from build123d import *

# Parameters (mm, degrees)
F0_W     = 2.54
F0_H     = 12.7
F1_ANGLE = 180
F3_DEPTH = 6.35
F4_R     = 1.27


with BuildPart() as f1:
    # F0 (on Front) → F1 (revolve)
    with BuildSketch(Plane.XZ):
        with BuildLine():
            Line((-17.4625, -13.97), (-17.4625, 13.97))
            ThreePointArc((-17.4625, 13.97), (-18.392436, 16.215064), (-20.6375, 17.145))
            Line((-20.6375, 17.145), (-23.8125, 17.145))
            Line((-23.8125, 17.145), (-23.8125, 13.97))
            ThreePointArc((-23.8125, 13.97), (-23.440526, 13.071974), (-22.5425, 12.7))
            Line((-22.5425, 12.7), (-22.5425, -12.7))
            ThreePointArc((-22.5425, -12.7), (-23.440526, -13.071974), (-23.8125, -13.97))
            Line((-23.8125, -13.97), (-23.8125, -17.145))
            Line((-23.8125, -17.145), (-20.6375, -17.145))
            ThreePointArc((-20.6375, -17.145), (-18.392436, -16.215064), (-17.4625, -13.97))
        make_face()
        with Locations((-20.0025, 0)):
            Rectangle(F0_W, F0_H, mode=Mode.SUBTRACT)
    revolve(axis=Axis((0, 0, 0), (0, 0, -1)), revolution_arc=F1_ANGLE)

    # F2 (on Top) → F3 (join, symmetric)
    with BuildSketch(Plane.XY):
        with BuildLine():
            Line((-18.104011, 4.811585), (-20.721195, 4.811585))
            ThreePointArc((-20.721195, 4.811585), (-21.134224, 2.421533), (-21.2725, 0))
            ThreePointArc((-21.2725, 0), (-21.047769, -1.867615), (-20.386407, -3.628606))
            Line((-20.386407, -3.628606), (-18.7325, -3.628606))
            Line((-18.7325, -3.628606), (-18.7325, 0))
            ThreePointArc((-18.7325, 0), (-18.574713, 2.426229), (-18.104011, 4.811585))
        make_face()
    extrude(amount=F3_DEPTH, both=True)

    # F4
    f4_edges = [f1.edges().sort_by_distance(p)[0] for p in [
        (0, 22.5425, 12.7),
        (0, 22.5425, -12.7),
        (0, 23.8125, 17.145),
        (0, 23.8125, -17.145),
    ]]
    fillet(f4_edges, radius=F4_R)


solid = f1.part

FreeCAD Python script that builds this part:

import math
import FreeCAD as App
import Part
import Sketcher
Q = App.Units.Quantity


def edges_at(feature, points):
    """Names of the edges that pass closest to the given points."""
    edges = feature.Shape.Edges
    near = lambda p: min(range(len(edges)), key=lambda i: edges[i].distToShape(Part.Vertex(*p))[0])
    return sorted({f"Edge{near(p) + 1}" for p in points})


def add_polygon(sketch, points):
    """Adds a closed chain of lines whose ends are joined by coincident constraints."""
    first, n = sketch.GeometryCount, len(points)
    for a, b in zip(points, points[1:] + points[:1]):
        sketch.addGeometry(Part.LineSegment(App.Vector(*a, 0), App.Vector(*b, 0)), False)
    for i in range(n):
        sketch.addConstraint(Sketcher.Constraint("Coincident", first + i, 2, first + (i + 1) % n, 1))

doc = App.newDocument("Part")
body = doc.addObject("PartDesign::Body", "Body")

# Sketch on XZ plane
sketch1 = body.newObject("Sketcher::SketchObject", "Sketch")
sketch1.AttachmentSupport = (doc.getObject("XZ_Plane"), [""])
sketch1.MapMode = "FlatFace"
sketch1.addGeometry(Part.LineSegment(App.Vector(-17.5, -14, 0), App.Vector(-17.5, 14, 0)), False)  # 0
sketch1.addGeometry(Part.ArcOfCircle(Part.Circle(App.Vector(-20.6, 14, 0), App.Vector(0, 0, 1), 3.2), math.radians(0), math.radians(90)), False)  # 1
sketch1.addGeometry(Part.LineSegment(App.Vector(-20.6, 17.1, 0), App.Vector(-23.8, 17.1, 0)), False)  # 2
sketch1.addGeometry(Part.LineSegment(App.Vector(-23.8, 17.1, 0), App.Vector(-23.8, 14, 0)), False)  # 3
sketch1.addGeometry(Part.ArcOfCircle(Part.Circle(App.Vector(-22.5, 14, 0), App.Vector(0, 0, 1), 1.3), math.radians(180), math.radians(270)), False)  # 4
sketch1.addGeometry(Part.LineSegment(App.Vector(-22.5, 12.7, 0), App.Vector(-22.5, -12.7, 0)), False)  # 5
sketch1.addGeometry(Part.ArcOfCircle(Part.Circle(App.Vector(-22.5, -14, 0), App.Vector(0, 0, 1), 1.3), math.radians(90), math.radians(180)), False)  # 6
sketch1.addGeometry(Part.LineSegment(App.Vector(-23.8, -14, 0), App.Vector(-23.8, -17.1, 0)), False)  # 7
sketch1.addGeometry(Part.LineSegment(App.Vector(-23.8, -17.1, 0), App.Vector(-20.6, -17.1, 0)), False)  # 8
sketch1.addGeometry(Part.ArcOfCircle(Part.Circle(App.Vector(-20.6, -14, 0), App.Vector(0, 0, 1), 3.2), math.radians(-90), math.radians(0)), False)  # 9
add_polygon(sketch1, [(-18.7, -6.3), (-21.3, -6.3), (-21.3, 6.3), (-18.7, 6.3)])  # lines 10-13
sketch1.addConstraint(Sketcher.Constraint("Tangent", 0, 2, 1, 1))
sketch1.addConstraint(Sketcher.Constraint("Tangent", 1, 2, 2, 1))
sketch1.addConstraint(Sketcher.Constraint("Coincident", 2, 2, 3, 1))
sketch1.addConstraint(Sketcher.Constraint("Tangent", 3, 2, 4, 1))
sketch1.addConstraint(Sketcher.Constraint("Coincident", 4, 2, 5, 1))
sketch1.addConstraint(Sketcher.Constraint("Coincident", 5, 2, 6, 1))
sketch1.addConstraint(Sketcher.Constraint("Tangent", 6, 2, 7, 1))
sketch1.addConstraint(Sketcher.Constraint("Coincident", 7, 2, 8, 1))
sketch1.addConstraint(Sketcher.Constraint("Tangent", 8, 2, 9, 1))
sketch1.addConstraint(Sketcher.Constraint("Tangent", 9, 2, 0, 1))
sketch1.addConstraint(Sketcher.Constraint("Vertical", 0))
sketch1.addConstraint(Sketcher.Constraint("Horizontal", 2))
sketch1.addConstraint(Sketcher.Constraint("Vertical", 3))
sketch1.addConstraint(Sketcher.Constraint("Vertical", 5))
sketch1.addConstraint(Sketcher.Constraint("Vertical", 7))
sketch1.addConstraint(Sketcher.Constraint("Horizontal", 8))
sketch1.addConstraint(Sketcher.Constraint("Horizontal", 10))
sketch1.addConstraint(Sketcher.Constraint("Vertical", 11))
sketch1.addConstraint(Sketcher.Constraint("Horizontal", 12))
sketch1.addConstraint(Sketcher.Constraint("Vertical", 13))
sketch1.addConstraint(Sketcher.Constraint("Equal", 4, 6))
sketch1.addConstraint(Sketcher.Constraint("Equal", 1, 9))
sketch1.addConstraint(Sketcher.Constraint("Symmetric", 4, 3, 6, 3, -1))
sketch1.addConstraint(Sketcher.Constraint("Horizontal", 1, 3, 4, 3))
sketch1.addConstraint(Sketcher.Constraint("Horizontal", 6, 3, 9, 3))
sketch1.addConstraint(Sketcher.Constraint("Vertical", 6, 3, 4, 2))
sketch1.addConstraint(Sketcher.Constraint("Equal", 8, 3))
sketch1.addConstraint(Sketcher.Constraint("DistanceY", 5, 2, 5, 1, Q("1 in")))
sketch1.addConstraint(Sketcher.Constraint("Radius", 4, Q("0.0499999 in")))
sketch1.addConstraint(Sketcher.Constraint("DistanceX", 10, 2, 10, 1, Q("0.1 in")))
sketch1.addConstraint(Sketcher.Constraint("DistanceY", 11, 1, 11, 2, Q("0.5 in")))
sketch1.addConstraint(Sketcher.Constraint("Radius", 1, Q("0.125 in")))
sketch1.addConstraint(Sketcher.Constraint("DistanceY", 9, 3, 10, 2, Q("0.3 in")))
sketch1.addConstraint(Sketcher.Constraint("DistanceX", 6, 2, 10, 2, Q("0.1 in")))
sketch1.addConstraint(Sketcher.Constraint("DistanceX", 1, 3, -1, 1, Q("0.8125 in")))
revolution = body.newObject("PartDesign::Revolution", "Revolution")
revolution.Profile = sketch1
revolution.ReferenceAxis = (sketch1, ["V_Axis"])
revolution.Angle = 180
revolution.Reversed = True

# Sketch on XY plane
sketch2 = body.newObject("Sketcher::SketchObject", "Sketch001")
sketch2.AttachmentSupport = (doc.getObject("XY_Plane"), [""])
sketch2.MapMode = "FlatFace"
sketch2.addGeometry(Part.LineSegment(App.Vector(-18.1, 4.8, 0), App.Vector(-20.7, 4.8, 0)), False)
sketch2.addGeometry(Part.ArcOfCircle(Part.Circle(App.Vector(0, 0, 0), App.Vector(0, 0, 1), 21.3), math.radians(166.93), math.radians(180)), False)
sketch2.addGeometry(Part.ArcOfCircle(Part.Circle(App.Vector(-13.4, 0, 0), App.Vector(0, 0, 1), 7.9), math.radians(-180), math.radians(-153)), False)
sketch2.addGeometry(Part.LineSegment(App.Vector(-20.4, -3.6, 0), App.Vector(-18.7, -3.6, 0)), False)
sketch2.addGeometry(Part.LineSegment(App.Vector(-18.7, -3.6, 0), App.Vector(-18.7, 0, 0)), False)
sketch2.addGeometry(Part.ArcOfCircle(Part.Circle(App.Vector(0, 0, 0), App.Vector(0, 0, 1), 18.7), math.radians(165.12), math.radians(180)), False)
sketch2.addConstraint(Sketcher.Constraint("Coincident", 0, 2, 1, 1))
sketch2.addConstraint(Sketcher.Constraint("Tangent", 1, 2, 2, 1))
sketch2.addConstraint(Sketcher.Constraint("Coincident", 2, 2, 3, 1))
sketch2.addConstraint(Sketcher.Constraint("Coincident", 3, 2, 4, 1))
sketch2.addConstraint(Sketcher.Constraint("Tangent", 4, 2, 5, 2))
sketch2.addConstraint(Sketcher.Constraint("Coincident", 5, 1, 0, 1))
sketch2.addConstraint(Sketcher.Constraint("Horizontal", 0))
sketch2.addConstraint(Sketcher.Constraint("Horizontal", 3))
sketch2.addConstraint(Sketcher.Constraint("Vertical", 4))
sketch2.addConstraint(Sketcher.Constraint("PointOnObject", 2, 3, -1))
sketch2.addConstraint(Sketcher.Constraint("PointOnObject", 1, 2, -1))
sketch2.addConstraint(Sketcher.Constraint("PointOnObject", 4, 2, -1))
sketch2.addConstraint(Sketcher.Constraint("DistanceX", 1, 2, 3, 2, Q("0.1 in")))
sketch2.addConstraint(Sketcher.Constraint("DistanceX", 1, 2, -1, 1, Q("0.8375 in")))
sketch2.addConstraint(Sketcher.Constraint("Radius", 1, 21.272566))
sketch2.addConstraint(Sketcher.Constraint("Radius", 2, 7.872737))
sketch2.addConstraint(Sketcher.Constraint("Radius", 5, 18.732532))
sketch2.addConstraint(Sketcher.Constraint("DistanceY", 2, 2, 1, 3, 3.6286))
sketch2.addConstraint(Sketcher.Constraint("DistanceX", 0, 2, 0, 1, 2.617184))
pad1 = body.newObject("PartDesign::Pad", "Pad")
pad1.Profile = sketch2
pad1.Length = Q("0.5 in")
pad1.Midplane = True
doc.recompute()

fillet = body.newObject("PartDesign::Fillet", "Fillet")
fillet.Base = (pad1, edges_at(pad1, [
    (0, 22.543, 12.7),
    (0, 22.543, -12.7),
    (0, 23.812, 17.145),
    (0, 23.812, -17.145),
]))
fillet.Radius = Q("0.05 in")

doc.recompute()
